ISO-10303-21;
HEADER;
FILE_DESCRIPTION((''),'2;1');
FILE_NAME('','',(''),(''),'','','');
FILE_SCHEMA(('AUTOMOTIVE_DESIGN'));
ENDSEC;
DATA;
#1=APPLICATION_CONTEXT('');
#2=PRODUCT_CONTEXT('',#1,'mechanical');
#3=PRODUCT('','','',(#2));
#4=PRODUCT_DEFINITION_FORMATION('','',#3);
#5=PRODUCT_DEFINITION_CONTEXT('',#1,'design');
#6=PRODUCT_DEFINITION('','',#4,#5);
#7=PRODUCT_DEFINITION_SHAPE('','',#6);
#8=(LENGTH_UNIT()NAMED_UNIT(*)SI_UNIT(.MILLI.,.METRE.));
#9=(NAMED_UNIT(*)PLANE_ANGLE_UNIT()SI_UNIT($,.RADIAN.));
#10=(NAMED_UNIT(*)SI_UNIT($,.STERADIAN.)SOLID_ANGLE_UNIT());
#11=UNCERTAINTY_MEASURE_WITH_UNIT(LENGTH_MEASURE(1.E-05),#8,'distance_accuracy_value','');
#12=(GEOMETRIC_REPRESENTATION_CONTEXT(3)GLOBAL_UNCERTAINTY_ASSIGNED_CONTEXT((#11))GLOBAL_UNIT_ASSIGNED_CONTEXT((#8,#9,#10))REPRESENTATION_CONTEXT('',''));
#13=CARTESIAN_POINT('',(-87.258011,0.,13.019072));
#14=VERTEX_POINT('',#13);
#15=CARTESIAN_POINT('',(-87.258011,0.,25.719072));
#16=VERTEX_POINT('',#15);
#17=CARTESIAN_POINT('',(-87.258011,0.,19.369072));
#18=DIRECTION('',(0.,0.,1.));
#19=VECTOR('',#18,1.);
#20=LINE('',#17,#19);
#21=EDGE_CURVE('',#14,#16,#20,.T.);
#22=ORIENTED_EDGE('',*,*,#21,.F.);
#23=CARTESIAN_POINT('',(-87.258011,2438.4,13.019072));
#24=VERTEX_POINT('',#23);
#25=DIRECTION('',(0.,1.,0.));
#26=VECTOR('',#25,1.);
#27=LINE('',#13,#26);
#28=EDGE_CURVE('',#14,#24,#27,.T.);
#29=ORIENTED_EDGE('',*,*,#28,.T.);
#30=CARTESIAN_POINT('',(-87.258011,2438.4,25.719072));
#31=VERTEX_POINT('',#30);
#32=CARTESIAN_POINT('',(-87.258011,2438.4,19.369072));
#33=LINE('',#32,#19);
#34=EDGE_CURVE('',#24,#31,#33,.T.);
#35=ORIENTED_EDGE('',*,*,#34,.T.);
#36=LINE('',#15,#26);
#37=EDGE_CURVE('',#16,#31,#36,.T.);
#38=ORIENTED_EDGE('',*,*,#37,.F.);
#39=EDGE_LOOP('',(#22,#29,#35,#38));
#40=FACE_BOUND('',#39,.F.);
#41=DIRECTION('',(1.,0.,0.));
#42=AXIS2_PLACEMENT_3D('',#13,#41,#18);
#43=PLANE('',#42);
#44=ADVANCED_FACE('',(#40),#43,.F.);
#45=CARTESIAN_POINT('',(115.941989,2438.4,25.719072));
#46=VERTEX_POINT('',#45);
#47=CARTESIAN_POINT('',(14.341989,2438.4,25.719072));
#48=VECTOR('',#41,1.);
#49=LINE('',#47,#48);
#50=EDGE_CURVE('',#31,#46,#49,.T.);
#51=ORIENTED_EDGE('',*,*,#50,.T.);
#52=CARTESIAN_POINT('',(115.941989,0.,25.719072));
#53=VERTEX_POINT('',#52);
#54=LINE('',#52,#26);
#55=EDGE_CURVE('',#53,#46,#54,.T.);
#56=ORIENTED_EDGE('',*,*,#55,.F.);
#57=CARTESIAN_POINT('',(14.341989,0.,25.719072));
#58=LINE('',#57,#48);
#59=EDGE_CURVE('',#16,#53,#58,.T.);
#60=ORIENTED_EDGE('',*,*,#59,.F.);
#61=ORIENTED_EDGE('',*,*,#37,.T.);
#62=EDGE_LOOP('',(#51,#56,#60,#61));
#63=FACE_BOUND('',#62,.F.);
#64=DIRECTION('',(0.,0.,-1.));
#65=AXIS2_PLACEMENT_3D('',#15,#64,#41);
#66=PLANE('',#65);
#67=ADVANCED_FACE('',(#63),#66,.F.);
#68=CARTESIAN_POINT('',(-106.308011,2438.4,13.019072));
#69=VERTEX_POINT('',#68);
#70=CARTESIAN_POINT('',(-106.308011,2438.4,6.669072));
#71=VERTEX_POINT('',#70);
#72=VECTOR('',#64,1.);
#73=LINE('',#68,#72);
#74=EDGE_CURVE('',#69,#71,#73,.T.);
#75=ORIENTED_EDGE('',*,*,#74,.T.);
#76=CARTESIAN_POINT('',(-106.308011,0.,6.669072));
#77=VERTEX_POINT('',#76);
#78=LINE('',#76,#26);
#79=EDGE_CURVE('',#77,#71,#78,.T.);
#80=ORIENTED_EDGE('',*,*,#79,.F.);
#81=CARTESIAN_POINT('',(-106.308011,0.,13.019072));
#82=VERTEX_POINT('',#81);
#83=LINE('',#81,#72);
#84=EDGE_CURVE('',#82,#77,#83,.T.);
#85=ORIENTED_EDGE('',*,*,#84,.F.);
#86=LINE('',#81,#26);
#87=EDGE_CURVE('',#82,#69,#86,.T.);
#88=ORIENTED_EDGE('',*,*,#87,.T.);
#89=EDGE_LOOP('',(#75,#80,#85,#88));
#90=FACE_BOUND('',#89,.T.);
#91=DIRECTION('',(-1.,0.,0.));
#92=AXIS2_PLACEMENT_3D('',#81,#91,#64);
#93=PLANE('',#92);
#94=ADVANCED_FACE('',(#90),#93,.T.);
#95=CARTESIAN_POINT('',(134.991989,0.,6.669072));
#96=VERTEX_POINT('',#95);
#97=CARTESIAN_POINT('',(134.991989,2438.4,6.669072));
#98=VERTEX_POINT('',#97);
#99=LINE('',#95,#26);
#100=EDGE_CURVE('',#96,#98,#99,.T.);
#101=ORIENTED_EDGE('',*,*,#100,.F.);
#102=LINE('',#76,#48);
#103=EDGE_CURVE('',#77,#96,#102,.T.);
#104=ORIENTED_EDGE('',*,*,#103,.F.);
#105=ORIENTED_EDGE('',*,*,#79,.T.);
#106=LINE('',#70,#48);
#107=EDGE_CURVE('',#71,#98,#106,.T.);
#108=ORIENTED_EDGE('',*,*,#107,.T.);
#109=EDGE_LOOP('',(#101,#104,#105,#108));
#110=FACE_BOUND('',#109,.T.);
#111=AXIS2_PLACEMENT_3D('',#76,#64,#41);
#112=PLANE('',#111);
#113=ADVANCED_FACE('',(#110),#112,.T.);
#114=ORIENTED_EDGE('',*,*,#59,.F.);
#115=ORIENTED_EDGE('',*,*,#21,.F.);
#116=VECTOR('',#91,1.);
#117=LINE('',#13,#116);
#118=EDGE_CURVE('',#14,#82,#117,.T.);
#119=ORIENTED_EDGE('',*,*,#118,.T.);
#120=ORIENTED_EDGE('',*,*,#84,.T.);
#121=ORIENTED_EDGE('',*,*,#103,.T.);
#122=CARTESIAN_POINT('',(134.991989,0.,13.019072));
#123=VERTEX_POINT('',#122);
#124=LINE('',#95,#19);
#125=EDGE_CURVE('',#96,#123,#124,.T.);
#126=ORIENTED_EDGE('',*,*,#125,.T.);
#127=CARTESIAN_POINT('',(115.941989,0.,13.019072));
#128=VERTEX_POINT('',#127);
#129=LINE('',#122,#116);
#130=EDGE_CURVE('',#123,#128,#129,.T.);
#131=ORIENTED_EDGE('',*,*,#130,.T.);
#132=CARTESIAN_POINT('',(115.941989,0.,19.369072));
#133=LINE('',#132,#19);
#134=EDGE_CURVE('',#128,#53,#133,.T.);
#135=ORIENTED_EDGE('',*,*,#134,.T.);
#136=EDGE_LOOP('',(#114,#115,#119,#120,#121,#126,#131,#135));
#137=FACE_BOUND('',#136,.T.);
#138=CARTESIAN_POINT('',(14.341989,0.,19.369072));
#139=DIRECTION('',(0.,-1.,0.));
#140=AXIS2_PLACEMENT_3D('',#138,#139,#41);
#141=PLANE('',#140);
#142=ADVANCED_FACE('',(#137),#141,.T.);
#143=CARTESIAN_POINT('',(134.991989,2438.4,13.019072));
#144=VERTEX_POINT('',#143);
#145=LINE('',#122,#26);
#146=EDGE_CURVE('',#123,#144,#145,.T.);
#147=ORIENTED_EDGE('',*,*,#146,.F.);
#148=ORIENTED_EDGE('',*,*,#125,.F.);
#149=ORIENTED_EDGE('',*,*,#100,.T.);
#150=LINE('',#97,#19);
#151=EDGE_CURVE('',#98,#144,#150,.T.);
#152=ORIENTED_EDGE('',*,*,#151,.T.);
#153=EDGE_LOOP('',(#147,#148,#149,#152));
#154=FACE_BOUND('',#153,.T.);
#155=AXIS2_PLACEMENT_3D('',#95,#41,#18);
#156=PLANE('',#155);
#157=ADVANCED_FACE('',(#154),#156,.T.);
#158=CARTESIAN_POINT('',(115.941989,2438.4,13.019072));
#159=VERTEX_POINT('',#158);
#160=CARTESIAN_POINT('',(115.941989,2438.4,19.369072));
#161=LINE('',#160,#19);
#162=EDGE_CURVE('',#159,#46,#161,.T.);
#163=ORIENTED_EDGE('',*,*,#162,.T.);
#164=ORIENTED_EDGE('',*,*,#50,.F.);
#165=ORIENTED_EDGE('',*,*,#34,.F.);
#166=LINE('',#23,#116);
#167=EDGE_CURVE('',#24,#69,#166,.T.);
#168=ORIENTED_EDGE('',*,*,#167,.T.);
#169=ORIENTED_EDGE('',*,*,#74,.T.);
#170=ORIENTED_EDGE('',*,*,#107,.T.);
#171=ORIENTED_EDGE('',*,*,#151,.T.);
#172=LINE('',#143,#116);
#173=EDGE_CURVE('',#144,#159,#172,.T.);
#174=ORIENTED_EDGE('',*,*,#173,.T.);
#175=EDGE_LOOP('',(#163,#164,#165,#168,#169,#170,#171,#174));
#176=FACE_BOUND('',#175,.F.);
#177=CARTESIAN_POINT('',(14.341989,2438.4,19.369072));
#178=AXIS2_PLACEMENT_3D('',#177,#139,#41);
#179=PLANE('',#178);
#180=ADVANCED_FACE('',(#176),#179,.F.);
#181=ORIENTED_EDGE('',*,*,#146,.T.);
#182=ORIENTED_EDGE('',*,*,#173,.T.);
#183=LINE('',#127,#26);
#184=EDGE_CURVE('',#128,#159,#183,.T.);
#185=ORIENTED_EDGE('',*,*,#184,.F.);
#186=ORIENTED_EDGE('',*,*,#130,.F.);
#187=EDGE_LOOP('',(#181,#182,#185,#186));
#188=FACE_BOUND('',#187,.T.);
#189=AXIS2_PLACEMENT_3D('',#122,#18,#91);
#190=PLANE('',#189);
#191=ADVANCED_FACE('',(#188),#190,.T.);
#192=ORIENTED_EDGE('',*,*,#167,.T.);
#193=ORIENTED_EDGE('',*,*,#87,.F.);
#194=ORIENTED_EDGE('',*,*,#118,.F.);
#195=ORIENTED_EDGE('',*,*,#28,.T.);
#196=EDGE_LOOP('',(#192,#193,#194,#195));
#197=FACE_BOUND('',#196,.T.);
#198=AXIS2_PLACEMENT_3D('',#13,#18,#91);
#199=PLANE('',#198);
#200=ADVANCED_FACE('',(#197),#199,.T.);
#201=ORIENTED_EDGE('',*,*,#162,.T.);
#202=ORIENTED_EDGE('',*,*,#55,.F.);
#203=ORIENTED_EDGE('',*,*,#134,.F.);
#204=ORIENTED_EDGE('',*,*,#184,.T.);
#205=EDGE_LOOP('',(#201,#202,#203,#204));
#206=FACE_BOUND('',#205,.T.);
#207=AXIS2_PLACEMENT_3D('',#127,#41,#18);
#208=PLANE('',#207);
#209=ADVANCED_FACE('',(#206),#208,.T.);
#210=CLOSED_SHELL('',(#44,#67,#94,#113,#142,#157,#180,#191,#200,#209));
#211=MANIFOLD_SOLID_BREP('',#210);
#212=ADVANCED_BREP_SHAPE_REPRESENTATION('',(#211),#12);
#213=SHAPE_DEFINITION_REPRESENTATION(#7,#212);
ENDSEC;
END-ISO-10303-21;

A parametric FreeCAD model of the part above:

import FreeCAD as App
import Part
import Sketcher
from FreeCAD import Vector
Q = App.Units.Quantity

doc = App.newDocument("Part")
body = doc.addObject("PartDesign::Body", "Body")

# Sketch on XZ plane
sketch1 = body.newObject("Sketcher::SketchObject", "Sketch")
sketch1.AttachmentSupport = (doc.getObject("XZ_Plane"), [""])
sketch1.MapMode = "FlatFace"
sketch1.addGeometry(Part.LineSegment(Vector(-87.258011, 25.719072, 0), Vector(-87.258011, 13.019072, 0)), False)
sketch1.addGeometry(Part.LineSegment(Vector(-87.258011, 13.019072, 0), Vector(-106.308011, 13.019072, 0)), False)
sketch1.addGeometry(Part.LineSegment(Vector(-106.308011, 13.019072, 0), Vector(-106.308011, 6.669072, 0)), False)
sketch1.addGeometry(Part.LineSegment(Vector(-106.308011, 6.669072, 0), Vector(134.991989, 6.669072, 0)), False)
sketch1.addGeometry(Part.LineSegment(Vector(134.991989, 6.669072, 0), Vector(134.991989, 13.019072, 0)), False)
sketch1.addGeometry(Part.LineSegment(Vector(134.991989, 13.019072, 0), Vector(115.941989, 13.019072, 0)), False)
sketch1.addGeometry(Part.LineSegment(Vector(115.941989, 13.019072, 0), Vector(115.941989, 25.719072, 0)), False)
sketch1.addGeometry(Part.LineSegment(Vector(115.941989, 25.719072, 0), Vector(-87.258011, 25.719072, 0)), False)
sketch1.addConstraint(Sketcher.Constraint("Coincident", 0, 2, 1, 1))
sketch1.addConstraint(Sketcher.Constraint("Coincident", 1, 2, 2, 1))
sketch1.addConstraint(Sketcher.Constraint("Coincident", 2, 2, 3, 1))
sketch1.addConstraint(Sketcher.Constraint("Coincident", 3, 2, 4, 1))
sketch1.addConstraint(Sketcher.Constraint("Coincident", 4, 2, 5, 1))
sketch1.addConstraint(Sketcher.Constraint("Coincident", 5, 2, 6, 1))
sketch1.addConstraint(Sketcher.Constraint("Coincident", 6, 2, 7, 1))
sketch1.addConstraint(Sketcher.Constraint("Coincident", 7, 2, 0, 1))
sketch1.addConstraint(Sketcher.Constraint("Vertical", 0))
sketch1.addConstraint(Sketcher.Constraint("Horizontal", 1))
sketch1.addConstraint(Sketcher.Constraint("Vertical", 2))
sketch1.addConstraint(Sketcher.Constraint("Horizontal", 3))
sketch1.addConstraint(Sketcher.Constraint("Vertical", 4))
sketch1.addConstraint(Sketcher.Constraint("Horizontal", 5))
sketch1.addConstraint(Sketcher.Constraint("Vertical", 6))
sketch1.addConstraint(Sketcher.Constraint("Horizontal", 7))
sketch1.addConstraint(Sketcher.Constraint("Horizontal", 1, 2, 4, 2))
sketch1.addConstraint(Sketcher.Constraint("Equal", 1, 5))
sketch1.addConstraint(Sketcher.Constraint("DistanceX", 7, 2, 7, 1, Q("8 in")))
sketch1.addConstraint(Sketcher.Constraint("DistanceX", 3, 1, 3, 2, Q("9.5 in")))
sketch1.addConstraint(Sketcher.Constraint("DistanceY", 0, 2, 0, 1, Q("0.5 in")))
sketch1.addConstraint(Sketcher.Constraint("DistanceY", 2, 2, 2, 1, Q("0.25 in")))
sketch1.addConstraint(Sketcher.Constraint("DistanceX", 0, 2, -1, 1, 87.258011))
sketch1.addConstraint(Sketcher.Constraint("DistanceY", -1, 1, 0, 2, 13.019072))
pad1 = body.newObject("PartDesign::Pad", "Pad")
pad1.Profile = sketch1
pad1.Length = Q("96 in")
pad1.Reversed = True

doc.recompute()
